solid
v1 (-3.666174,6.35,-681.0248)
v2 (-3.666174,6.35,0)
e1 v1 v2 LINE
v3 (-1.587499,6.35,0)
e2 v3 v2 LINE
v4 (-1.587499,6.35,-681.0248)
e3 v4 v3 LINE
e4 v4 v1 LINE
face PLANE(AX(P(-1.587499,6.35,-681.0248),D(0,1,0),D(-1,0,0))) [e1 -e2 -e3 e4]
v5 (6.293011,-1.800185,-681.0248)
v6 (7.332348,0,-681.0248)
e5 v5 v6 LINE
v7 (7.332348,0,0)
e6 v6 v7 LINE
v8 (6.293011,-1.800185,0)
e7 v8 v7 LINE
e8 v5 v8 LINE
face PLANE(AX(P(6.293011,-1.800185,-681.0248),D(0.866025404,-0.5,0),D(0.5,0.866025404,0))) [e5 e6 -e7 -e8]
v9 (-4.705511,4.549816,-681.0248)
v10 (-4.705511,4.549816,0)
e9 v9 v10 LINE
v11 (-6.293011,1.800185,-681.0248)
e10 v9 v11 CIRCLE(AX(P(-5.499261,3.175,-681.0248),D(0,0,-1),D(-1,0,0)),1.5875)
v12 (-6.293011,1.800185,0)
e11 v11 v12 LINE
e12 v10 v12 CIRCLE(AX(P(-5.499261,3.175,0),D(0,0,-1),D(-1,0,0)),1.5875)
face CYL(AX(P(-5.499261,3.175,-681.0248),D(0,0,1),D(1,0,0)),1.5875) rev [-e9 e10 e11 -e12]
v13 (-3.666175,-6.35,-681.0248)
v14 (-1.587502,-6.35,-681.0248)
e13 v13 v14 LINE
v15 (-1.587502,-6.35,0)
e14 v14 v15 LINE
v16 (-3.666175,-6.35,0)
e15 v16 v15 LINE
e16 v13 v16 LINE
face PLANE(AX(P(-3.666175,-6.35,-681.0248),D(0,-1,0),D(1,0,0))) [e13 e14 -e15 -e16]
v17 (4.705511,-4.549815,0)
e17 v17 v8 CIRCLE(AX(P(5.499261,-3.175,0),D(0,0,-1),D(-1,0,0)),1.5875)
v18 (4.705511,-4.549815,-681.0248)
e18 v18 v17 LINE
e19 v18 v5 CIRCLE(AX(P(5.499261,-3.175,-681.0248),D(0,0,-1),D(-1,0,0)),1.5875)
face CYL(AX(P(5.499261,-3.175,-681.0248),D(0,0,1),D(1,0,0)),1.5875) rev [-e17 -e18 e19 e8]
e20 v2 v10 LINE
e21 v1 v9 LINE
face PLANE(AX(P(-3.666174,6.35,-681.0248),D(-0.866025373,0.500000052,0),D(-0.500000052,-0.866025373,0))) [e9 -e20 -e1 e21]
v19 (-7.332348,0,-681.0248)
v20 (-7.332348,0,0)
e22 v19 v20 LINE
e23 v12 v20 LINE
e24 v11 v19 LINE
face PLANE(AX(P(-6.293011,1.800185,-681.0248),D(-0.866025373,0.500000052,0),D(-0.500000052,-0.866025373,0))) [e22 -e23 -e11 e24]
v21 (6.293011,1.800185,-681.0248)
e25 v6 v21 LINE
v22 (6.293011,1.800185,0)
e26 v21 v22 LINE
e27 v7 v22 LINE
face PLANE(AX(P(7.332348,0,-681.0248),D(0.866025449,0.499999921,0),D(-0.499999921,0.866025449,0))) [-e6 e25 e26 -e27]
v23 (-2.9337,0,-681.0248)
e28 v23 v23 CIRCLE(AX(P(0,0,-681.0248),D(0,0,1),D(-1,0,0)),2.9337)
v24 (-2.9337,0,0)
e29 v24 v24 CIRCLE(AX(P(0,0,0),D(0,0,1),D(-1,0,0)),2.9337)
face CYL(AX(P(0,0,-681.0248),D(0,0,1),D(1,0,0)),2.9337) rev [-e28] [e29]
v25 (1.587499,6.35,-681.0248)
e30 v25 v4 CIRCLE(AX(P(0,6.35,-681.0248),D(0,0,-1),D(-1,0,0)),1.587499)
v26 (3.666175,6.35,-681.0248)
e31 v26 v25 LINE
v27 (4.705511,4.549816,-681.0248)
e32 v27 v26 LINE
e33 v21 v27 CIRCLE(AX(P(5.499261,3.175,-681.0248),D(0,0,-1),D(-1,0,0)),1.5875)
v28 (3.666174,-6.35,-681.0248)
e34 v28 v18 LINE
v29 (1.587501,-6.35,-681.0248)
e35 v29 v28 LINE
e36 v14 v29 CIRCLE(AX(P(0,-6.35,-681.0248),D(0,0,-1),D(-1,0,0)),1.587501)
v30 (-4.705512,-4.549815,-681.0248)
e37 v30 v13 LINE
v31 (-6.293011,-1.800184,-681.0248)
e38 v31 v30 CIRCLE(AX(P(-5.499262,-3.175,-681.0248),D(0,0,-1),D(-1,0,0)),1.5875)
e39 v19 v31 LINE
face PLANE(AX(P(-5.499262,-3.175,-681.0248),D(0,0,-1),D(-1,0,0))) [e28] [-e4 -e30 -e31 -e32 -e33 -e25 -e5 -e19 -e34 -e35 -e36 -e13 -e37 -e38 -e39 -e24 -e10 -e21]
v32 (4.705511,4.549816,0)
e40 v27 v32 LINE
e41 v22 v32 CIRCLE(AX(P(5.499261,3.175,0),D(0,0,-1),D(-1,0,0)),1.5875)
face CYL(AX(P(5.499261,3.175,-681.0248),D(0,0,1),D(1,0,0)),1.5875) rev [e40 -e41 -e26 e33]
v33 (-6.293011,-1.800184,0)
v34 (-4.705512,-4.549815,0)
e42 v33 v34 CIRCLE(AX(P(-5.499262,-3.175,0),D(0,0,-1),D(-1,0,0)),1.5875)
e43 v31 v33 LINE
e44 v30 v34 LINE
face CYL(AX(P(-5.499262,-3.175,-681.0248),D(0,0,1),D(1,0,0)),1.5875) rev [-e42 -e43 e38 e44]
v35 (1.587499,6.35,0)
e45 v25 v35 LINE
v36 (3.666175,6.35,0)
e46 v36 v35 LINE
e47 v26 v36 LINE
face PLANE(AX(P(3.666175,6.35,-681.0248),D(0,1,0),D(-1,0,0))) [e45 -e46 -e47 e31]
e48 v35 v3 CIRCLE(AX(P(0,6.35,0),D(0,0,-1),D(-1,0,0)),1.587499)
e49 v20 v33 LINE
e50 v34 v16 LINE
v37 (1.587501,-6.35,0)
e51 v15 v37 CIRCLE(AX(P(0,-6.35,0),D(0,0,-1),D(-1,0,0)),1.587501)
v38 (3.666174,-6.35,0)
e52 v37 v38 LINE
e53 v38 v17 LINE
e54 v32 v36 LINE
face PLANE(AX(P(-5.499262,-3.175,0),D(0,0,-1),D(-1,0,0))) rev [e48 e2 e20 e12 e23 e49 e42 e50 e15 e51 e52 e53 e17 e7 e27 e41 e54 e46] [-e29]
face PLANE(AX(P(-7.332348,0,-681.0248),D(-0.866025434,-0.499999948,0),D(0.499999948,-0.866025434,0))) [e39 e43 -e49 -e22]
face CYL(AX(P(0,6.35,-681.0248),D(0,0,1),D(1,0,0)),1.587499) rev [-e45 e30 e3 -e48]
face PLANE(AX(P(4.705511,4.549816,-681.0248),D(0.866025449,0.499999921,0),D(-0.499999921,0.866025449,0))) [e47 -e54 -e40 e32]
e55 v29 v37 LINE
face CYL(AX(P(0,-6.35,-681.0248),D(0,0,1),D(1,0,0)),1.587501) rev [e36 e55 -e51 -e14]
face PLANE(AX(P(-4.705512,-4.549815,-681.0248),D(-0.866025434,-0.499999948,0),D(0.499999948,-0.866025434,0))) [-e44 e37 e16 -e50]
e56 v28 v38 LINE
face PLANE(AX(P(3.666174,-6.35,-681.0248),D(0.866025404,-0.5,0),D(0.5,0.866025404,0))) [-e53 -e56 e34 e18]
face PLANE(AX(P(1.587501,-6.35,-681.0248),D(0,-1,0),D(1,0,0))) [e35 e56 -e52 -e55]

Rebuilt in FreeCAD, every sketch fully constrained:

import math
import FreeCAD as App
import Part
import Sketcher
Q = App.Units.Quantity

doc = App.newDocument("Part")
body = doc.addObject("PartDesign::Body", "Body")

# Sketch on XY plane
sketch1 = body.newObject("Sketcher::SketchObject", "Sketch")
sketch1.AttachmentSupport = (doc.getObject("XY_Plane"), [""])
sketch1.MapMode = "FlatFace"
sketch1.addGeometry([
    Part.LineSegment(App.Vector(-4.7, -4.5, 0), App.Vector(-3.7, -6.3, 0)),  # 0
    Part.LineSegment(App.Vector(-3.7, -6.3, 0), App.Vector(-1.6, -6.3, 0)),  # 1
    Part.ArcOfCircle(Part.Circle(App.Vector(0, -6.4, 0), App.Vector(0, 0, 1), 1.6), math.radians(0), math.radians(180)),  # 2
    Part.LineSegment(App.Vector(1.6, -6.3, 0), App.Vector(3.7, -6.3, 0)),  # 3
    Part.LineSegment(App.Vector(3.7, -6.3, 0), App.Vector(4.7, -4.5, 0)),  # 4
    Part.ArcOfCircle(Part.Circle(App.Vector(5.5, -3.2, 0), App.Vector(0, 0, 1), 1.6), math.radians(60), math.radians(240)),  # 5
    Part.LineSegment(App.Vector(6.3, -1.8, 0), App.Vector(7.3, 0, 0)),  # 6
    Part.LineSegment(App.Vector(7.3, 0, 0), App.Vector(6.3, 1.8, 0)),  # 7
    Part.ArcOfCircle(Part.Circle(App.Vector(5.5, 3.2, 0), App.Vector(0, 0, 1), 1.6), math.radians(120), math.radians(300)),  # 8
    Part.LineSegment(App.Vector(4.7, 4.5, 0), App.Vector(3.7, 6.4, 0)),  # 9
    Part.LineSegment(App.Vector(3.7, 6.4, 0), App.Vector(1.6, 6.4, 0)),  # 10
    Part.ArcOfCircle(Part.Circle(App.Vector(0, 6.4, 0), App.Vector(0, 0, 1), 1.6), math.radians(-180), math.radians(0)),  # 11
    Part.LineSegment(App.Vector(-1.6, 6.4, 0), App.Vector(-3.7, 6.4, 0)),  # 12
    Part.LineSegment(App.Vector(-3.7, 6.4, 0), App.Vector(-4.7, 4.5, 0)),  # 13
    Part.ArcOfCircle(Part.Circle(App.Vector(-5.5, 3.2, 0), App.Vector(0, 0, 1), 1.6), math.radians(-120), math.radians(60)),  # 14
    Part.LineSegment(App.Vector(-6.3, 1.8, 0), App.Vector(-7.3, 0, 0)),  # 15
    Part.LineSegment(App.Vector(-7.3, 0, 0), App.Vector(-6.3, -1.8, 0)),  # 16
    Part.ArcOfCircle(Part.Circle(App.Vector(-5.5, -3.2, 0), App.Vector(0, 0, 1), 1.6), math.radians(-60), math.radians(120)),  # 17
    Part.Circle(App.Vector(0, 0, 0), App.Vector(0, 0, 1), 2.9),  # 18
], False)
sketch1.addConstraint([
    Sketcher.Constraint("Coincident", 0, 2, 1, 1),
    Sketcher.Constraint("Coincident", 1, 2, 2, 2),
    Sketcher.Constraint("Coincident", 2, 1, 3, 1),
    Sketcher.Constraint("Coincident", 3, 2, 4, 1),
    Sketcher.Constraint("Coincident", 4, 2, 5, 2),
    Sketcher.Constraint("Coincident", 5, 1, 6, 1),
    Sketcher.Constraint("Coincident", 6, 2, 7, 1),
    Sketcher.Constraint("Coincident", 7, 2, 8, 2),
    Sketcher.Constraint("Coincident", 8, 1, 9, 1),
    Sketcher.Constraint("Coincident", 9, 2, 10, 1),
    Sketcher.Constraint("Coincident", 10, 2, 11, 2),
    Sketcher.Constraint("Coincident", 11, 1, 12, 1),
    Sketcher.Constraint("Coincident", 12, 2, 13, 1),
    Sketcher.Constraint("Coincident", 13, 2, 14, 2),
    Sketcher.Constraint("Coincident", 14, 1, 15, 1),
    Sketcher.Constraint("Coincident", 15, 2, 16, 1),
    Sketcher.Constraint("Coincident", 16, 2, 17, 2),
    Sketcher.Constraint("Coincident", 17, 1, 0, 1),
    Sketcher.Constraint("Horizontal", 1),
    Sketcher.Constraint("Horizontal", 3),
    Sketcher.Constraint("Horizontal", 10),
    Sketcher.Constraint("Horizontal", 12),
    Sketcher.Constraint("Coincident", 18, 3, -1, 1),
    Sketcher.Constraint("Equal", 2, 5),
    Sketcher.Constraint("Equal", 5, 8),
    Sketcher.Constraint("Equal", 8, 11),
    Sketcher.Constraint("Equal", 11, 14),
    Sketcher.Constraint("Equal", 14, 17),
    Sketcher.Constraint("Symmetric", 2, 3, 11, 3, -1, 1),
    Sketcher.Constraint("Symmetric", 5, 3, 14, 3, -1, 1),
    Sketcher.Constraint("Symmetric", 8, 3, 17, 3, -1, 1),
    Sketcher.Constraint("Symmetric", 0, 2, 9, 2, -1, 1),
    Sketcher.Constraint("Symmetric", 3, 2, 12, 2, -1, 1),
    Sketcher.Constraint("Symmetric", 6, 2, 15, 2, -1, 1),
    Sketcher.Constraint("Symmetric", 8, 3, 14, 3, -2),
    Sketcher.Constraint("Symmetric", 1, 2, 2, 1, -2),
    Sketcher.Constraint("PointOnObject", 6, 2, -1),
    Sketcher.Constraint("Parallel", 4, 6),
    Sketcher.Constraint("Parallel", 0, 7),
    Sketcher.Constraint("Parallel", 7, 9),
    Sketcher.Constraint("Parallel", 6, 13),
    Sketcher.Constraint("Parallel", 13, 15),
    Sketcher.Constraint("Parallel", 9, 16),
    Sketcher.Constraint("Horizontal", 2, 3, 0, 2),
    Sketcher.Constraint("Horizontal", 8, 1, 13, 2),
    Sketcher.Constraint("Horizontal", 7, 2, 14, 1),
    Sketcher.Constraint("Equal", 4, 6),
    Sketcher.Constraint("Diameter", 18, Q("0.231 in")),
    Sketcher.Constraint("Angle", 0, Q("-60.000003 deg")),
    Sketcher.Constraint("Radius", 2, Q("0.0625 in")),
    Sketcher.Constraint("DistanceY", 2, 3, 11, 3, Q("0.5 in")),
    Sketcher.Constraint("DistanceY", 5, 3, 8, 3, Q("0.25 in")),
    Sketcher.Constraint("DistanceX", 4, 2, 5, 3, Q("0.03125 in")),
    Sketcher.Constraint("DistanceX", 1, 1, 1, 2, 2.078673),
])
pad1 = body.newObject("PartDesign::Pad", "Pad")
pad1.Profile = sketch1
pad1.Length = Q("26.812 in")
pad1.Reversed = True

doc.recompute()
